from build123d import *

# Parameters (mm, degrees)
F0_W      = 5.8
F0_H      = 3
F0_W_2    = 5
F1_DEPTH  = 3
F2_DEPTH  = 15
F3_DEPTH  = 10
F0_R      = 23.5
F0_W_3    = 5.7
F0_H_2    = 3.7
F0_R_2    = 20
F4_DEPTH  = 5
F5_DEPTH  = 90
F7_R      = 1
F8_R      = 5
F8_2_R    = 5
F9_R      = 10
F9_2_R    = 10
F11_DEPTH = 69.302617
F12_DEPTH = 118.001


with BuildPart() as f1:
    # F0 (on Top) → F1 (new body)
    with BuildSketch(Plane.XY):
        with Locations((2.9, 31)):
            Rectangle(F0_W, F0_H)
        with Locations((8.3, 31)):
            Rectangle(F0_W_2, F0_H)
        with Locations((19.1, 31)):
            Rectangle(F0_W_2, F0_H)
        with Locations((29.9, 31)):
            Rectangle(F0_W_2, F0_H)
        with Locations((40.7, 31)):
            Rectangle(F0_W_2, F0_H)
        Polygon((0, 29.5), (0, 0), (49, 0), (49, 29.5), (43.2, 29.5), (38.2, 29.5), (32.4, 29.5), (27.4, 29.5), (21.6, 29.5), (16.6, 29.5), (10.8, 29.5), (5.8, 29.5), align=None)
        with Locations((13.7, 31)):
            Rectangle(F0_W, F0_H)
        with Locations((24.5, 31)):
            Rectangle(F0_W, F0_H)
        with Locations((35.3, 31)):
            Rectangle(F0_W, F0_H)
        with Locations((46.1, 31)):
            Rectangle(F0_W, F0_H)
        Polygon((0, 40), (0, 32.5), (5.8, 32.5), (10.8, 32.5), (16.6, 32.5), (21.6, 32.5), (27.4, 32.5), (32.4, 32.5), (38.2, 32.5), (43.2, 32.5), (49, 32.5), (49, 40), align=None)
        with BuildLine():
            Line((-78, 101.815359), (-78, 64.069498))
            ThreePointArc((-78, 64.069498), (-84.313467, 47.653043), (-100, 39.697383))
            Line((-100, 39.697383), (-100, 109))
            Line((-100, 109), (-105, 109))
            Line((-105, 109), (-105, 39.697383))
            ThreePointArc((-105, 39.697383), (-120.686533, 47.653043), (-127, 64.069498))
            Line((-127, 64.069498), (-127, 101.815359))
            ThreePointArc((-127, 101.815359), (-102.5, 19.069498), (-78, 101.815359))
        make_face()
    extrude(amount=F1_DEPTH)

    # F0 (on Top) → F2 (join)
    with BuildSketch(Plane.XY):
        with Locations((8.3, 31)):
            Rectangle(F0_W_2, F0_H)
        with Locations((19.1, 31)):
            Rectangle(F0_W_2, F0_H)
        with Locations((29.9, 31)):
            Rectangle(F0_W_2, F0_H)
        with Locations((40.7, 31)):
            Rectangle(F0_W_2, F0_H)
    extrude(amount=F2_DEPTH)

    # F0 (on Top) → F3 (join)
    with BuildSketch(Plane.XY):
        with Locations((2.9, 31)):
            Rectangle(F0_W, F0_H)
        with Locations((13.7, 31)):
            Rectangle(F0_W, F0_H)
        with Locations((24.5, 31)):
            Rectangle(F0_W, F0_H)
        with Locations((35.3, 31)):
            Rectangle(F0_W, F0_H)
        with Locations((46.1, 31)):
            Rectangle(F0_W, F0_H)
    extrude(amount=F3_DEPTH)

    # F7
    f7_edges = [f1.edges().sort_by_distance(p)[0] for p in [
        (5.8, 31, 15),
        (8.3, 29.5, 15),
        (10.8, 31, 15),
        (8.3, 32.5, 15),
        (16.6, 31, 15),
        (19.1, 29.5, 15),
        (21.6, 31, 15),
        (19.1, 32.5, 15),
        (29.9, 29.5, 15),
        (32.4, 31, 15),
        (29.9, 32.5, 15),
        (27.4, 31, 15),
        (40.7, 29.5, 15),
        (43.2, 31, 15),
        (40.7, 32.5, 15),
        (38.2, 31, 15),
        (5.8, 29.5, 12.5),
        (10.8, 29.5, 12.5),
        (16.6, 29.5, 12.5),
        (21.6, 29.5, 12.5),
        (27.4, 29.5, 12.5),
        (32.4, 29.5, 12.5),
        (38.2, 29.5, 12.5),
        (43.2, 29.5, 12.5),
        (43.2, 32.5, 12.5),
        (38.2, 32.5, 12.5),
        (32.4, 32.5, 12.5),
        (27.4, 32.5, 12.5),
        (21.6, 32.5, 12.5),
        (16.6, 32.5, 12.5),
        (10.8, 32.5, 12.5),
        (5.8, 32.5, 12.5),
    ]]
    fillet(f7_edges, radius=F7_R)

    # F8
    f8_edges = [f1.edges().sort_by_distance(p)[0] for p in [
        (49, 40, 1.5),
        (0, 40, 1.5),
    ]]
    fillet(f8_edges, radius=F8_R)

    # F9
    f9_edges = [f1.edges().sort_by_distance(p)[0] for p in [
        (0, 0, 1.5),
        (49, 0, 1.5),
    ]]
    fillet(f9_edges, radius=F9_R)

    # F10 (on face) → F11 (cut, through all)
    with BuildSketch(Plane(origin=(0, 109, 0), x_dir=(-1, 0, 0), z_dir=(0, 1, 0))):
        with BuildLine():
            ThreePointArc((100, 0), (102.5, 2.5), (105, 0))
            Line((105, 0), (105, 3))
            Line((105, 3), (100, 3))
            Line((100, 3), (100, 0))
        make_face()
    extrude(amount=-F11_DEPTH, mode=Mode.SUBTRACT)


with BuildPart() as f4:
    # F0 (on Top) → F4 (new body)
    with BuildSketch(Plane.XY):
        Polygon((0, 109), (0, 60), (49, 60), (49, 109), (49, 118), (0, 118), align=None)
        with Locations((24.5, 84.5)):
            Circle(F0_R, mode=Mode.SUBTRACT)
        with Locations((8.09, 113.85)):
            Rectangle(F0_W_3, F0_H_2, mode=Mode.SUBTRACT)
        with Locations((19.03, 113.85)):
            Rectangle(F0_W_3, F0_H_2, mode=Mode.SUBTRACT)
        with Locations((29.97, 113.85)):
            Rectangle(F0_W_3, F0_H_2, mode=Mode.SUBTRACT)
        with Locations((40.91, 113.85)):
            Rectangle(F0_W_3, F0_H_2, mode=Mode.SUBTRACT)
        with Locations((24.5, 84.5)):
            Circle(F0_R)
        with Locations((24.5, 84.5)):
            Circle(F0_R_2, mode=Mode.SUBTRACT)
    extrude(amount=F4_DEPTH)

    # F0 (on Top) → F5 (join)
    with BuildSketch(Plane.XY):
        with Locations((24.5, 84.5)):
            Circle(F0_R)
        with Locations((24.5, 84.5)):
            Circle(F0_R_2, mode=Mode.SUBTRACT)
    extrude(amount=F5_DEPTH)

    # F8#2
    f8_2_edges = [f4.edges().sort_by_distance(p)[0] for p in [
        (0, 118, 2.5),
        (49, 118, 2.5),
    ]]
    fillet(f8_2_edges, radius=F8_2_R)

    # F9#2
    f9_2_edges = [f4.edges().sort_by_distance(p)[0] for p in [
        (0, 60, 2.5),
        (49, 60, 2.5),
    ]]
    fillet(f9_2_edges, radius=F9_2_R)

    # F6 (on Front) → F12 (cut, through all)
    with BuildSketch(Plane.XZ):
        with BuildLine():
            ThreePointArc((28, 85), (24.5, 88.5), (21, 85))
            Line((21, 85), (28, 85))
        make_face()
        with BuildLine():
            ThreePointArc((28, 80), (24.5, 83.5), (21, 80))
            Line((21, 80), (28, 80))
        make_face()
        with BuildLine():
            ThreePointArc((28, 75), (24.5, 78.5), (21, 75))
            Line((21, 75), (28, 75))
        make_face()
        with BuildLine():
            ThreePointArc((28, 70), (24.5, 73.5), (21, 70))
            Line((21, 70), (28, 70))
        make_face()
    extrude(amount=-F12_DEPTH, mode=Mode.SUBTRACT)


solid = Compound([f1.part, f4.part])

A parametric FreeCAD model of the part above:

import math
import FreeCAD as App
import Part
import Sketcher
from FreeCAD import Vector


def edges_at(feature, points):
    """Names of the edges that pass closest to the given points."""
    edges = feature.Shape.Edges
    near = lambda p: min(range(len(edges)), key=lambda i: edges[i].distToShape(Part.Vertex(*p))[0])
    return sorted({f"Edge{near(p) + 1}" for p in points})


def add_polygon(sketch, points):
    """Adds a closed chain of lines whose ends are joined by coincident constraints."""
    first, n = sketch.GeometryCount, len(points)
    for a, b in zip(points, points[1:] + points[:1]):
        sketch.addGeometry(Part.LineSegment(App.Vector(*a, 0), App.Vector(*b, 0)), False)
    for i in range(n):
        sketch.addConstraint(Sketcher.Constraint("Coincident", first + i, 2, first + (i + 1) % n, 1))

doc = App.newDocument("Part")
body = doc.addObject("PartDesign::Body", "Body")
body.AllowCompound = True

# Sketch on XY plane
sketch1 = body.newObject("Sketcher::SketchObject", "Sketch")
sketch1.AttachmentSupport = (doc.getObject("XY_Plane"), [""])
sketch1.MapMode = "FlatFace"
add_polygon(sketch1, [(0, 0), (49, 0), (49, 40), (0, 40)])  # lines 0-3
sketch1.addGeometry(Part.LineSegment(Vector(-78, 102, 0), Vector(-78, 64, 0)), False)  # 4
sketch1.addGeometry(Part.ArcOfCircle(Part.Circle(Vector(-103, 64, 0), Vector(0, 0, 1), 25), math.radians(-84), math.radians(0)), False)  # 5
sketch1.addGeometry(Part.LineSegment(Vector(-100, 40, 0), Vector(-100, 109, 0)), False)  # 6
sketch1.addGeometry(Part.LineSegment(Vector(-100, 109, 0), Vector(-105, 109, 0)), False)  # 7
sketch1.addGeometry(Part.LineSegment(Vector(-105, 109, 0), Vector(-105, 40, 0)), False)  # 8
sketch1.addGeometry(Part.ArcOfCircle(Part.Circle(Vector(-102, 64, 0), Vector(0, 0, 1), 25), math.radians(-180), math.radians(-96)), False)  # 9
sketch1.addGeometry(Part.LineSegment(Vector(-127, 64, 0), Vector(-127, 102, 0)), False)  # 10
sketch1.addGeometry(Part.ArcOfCircle(Part.Circle(Vector(-102, 64, 0), Vector(0, 0, 1), 45), math.radians(123), math.radians(417)), False)  # 11
sketch1.addConstraint([
    Sketcher.Constraint("Tangent", 4, 2, 5, 2),
    Sketcher.Constraint("Coincident", 5, 1, 6, 1),
    Sketcher.Constraint("Coincident", 6, 2, 7, 1),
    Sketcher.Constraint("Coincident", 7, 2, 8, 1),
    Sketcher.Constraint("Coincident", 8, 2, 9, 2),
    Sketcher.Constraint("Tangent", 9, 1, 10, 1),
    Sketcher.Constraint("Coincident", 10, 2, 11, 1),
    Sketcher.Constraint("Coincident", 11, 2, 4, 1),
    Sketcher.Constraint("Horizontal", 0),
    Sketcher.Constraint("Vertical", 1),
    Sketcher.Constraint("Horizontal", 2),
    Sketcher.Constraint("Vertical", 3),
    Sketcher.Constraint("Vertical", 4),
    Sketcher.Constraint("Vertical", 6),
    Sketcher.Constraint("Horizontal", 7),
    Sketcher.Constraint("Vertical", 8),
    Sketcher.Constraint("Vertical", 10),
    Sketcher.Constraint("Coincident", 3, 2, -1, 1),
    Sketcher.Constraint("Coincident", 9, 3, 5, 3),
    Sketcher.Constraint("Coincident", 11, 3, 5, 3),
    Sketcher.Constraint("Equal", 5, 9),
    Sketcher.Constraint("Horizontal", 5, 1, 8, 2),
    Sketcher.Constraint("Radius", 11, 45.0),
    Sketcher.Constraint("Radius", 5, 24.500001),
    Sketcher.Constraint("DistanceX", 0, 1, 0, 2, 49.0),
    Sketcher.Constraint("DistanceX", 7, 2, 7, 1, 5.0),
    Sketcher.Constraint("DistanceY", 1, 1, 1, 2, 40.0),
    Sketcher.Constraint("DistanceX", 4, 2, -1, 1, 78.0),
    Sketcher.Constraint("DistanceY", -1, 1, 6, 2, 109.0),
    Sketcher.Constraint("DistanceY", -1, 1, 5, 3, 64.069499),
])
pad1 = body.newObject("PartDesign::Pad", "Pad")
pad1.Profile = sketch1
pad1.Length = 3

# Sketch on XY plane
sketch2 = body.newObject("Sketcher::SketchObject", "Sketch001")
sketch2.AttachmentSupport = (doc.getObject("XY_Plane"), [""])
sketch2.MapMode = "FlatFace"
add_polygon(sketch2, [(5.8, 32.5), (5.8, 29.5), (10.8, 29.5), (10.8, 32.5)])  # lines 0-3
add_polygon(sketch2, [(16.6, 32.5), (16.6, 29.5), (21.6, 29.5), (21.6, 32.5)])  # lines 4-7
add_polygon(sketch2, [(27.4, 32.5), (27.4, 29.5), (32.4, 29.5), (32.4, 32.5)])  # lines 8-11
add_polygon(sketch2, [(38.2, 32.5), (38.2, 29.5), (43.2, 29.5), (43.2, 32.5)])  # lines 12-15
sketch2.addConstraint([
    Sketcher.Constraint("Vertical", 0),
    Sketcher.Constraint("Horizontal", 1),
    Sketcher.Constraint("Vertical", 2),
    Sketcher.Constraint("Horizontal", 3),
    Sketcher.Constraint("Vertical", 4),
    Sketcher.Constraint("Horizontal", 5),
    Sketcher.Constraint("Vertical", 6),
    Sketcher.Constraint("Horizontal", 7),
    Sketcher.Constraint("Vertical", 8),
    Sketcher.Constraint("Horizontal", 9),
    Sketcher.Constraint("Vertical", 10),
    Sketcher.Constraint("Horizontal", 11),
    Sketcher.Constraint("Vertical", 12),
    Sketcher.Constraint("Horizontal", 13),
    Sketcher.Constraint("Vertical", 14),
    Sketcher.Constraint("Horizontal", 15),
    Sketcher.Constraint("Horizontal", 1, 2, 4, 2),
    Sketcher.Constraint("Horizontal", 3, 2, 6, 2),
    Sketcher.Constraint("Horizontal", 5, 2, 8, 2),
    Sketcher.Constraint("Horizontal", 7, 2, 10, 2),
    Sketcher.Constraint("Horizontal", 9, 2, 12, 2),
    Sketcher.Constraint("Horizontal", 11, 2, 14, 2),
    Sketcher.Constraint("Equal", 3, 5),
    Sketcher.Constraint("Equal", 7, 9),
    Sketcher.Constraint("Equal", 11, 13),
    Sketcher.Constraint("DistanceX", 1, 1, 1, 2, 5.0),
    Sketcher.Constraint("DistanceY", 0, 2, 0, 1, 3.0),
    Sketcher.Constraint("DistanceX", -1, 1, 0, 2, 5.8),
    Sketcher.Constraint("DistanceY", -1, 1, 0, 2, 29.5),
    Sketcher.Constraint("DistanceX", -1, 1, 4, 2, 16.6),
    Sketcher.Constraint("DistanceX", -1, 1, 8, 2, 27.4),
    Sketcher.Constraint("DistanceX", -1, 1, 12, 2, 38.2),
])
pad2 = body.newObject("PartDesign::Pad", "Pad001")
pad2.Profile = sketch2
pad2.Length = 15

# Sketch on XY plane
sketch3 = body.newObject("Sketcher::SketchObject", "Sketch002")
sketch3.AttachmentSupport = (doc.getObject("XY_Plane"), [""])
sketch3.MapMode = "FlatFace"
add_polygon(sketch3, [(0, 32.5), (0, 29.5), (5.8, 29.5), (5.8, 32.5)])  # lines 0-3
add_polygon(sketch3, [(10.8, 32.5), (10.8, 29.5), (16.6, 29.5), (16.6, 32.5)])  # lines 4-7
add_polygon(sketch3, [(21.6, 32.5), (21.6, 29.5), (27.4, 29.5), (27.4, 32.5)])  # lines 8-11
add_polygon(sketch3, [(32.4, 32.5), (32.4, 29.5), (38.2, 29.5), (38.2, 32.5)])  # lines 12-15
add_polygon(sketch3, [(43.2, 32.5), (43.2, 29.5), (49, 29.5), (49, 32.5)])  # lines 16-19
sketch3.addConstraint([
    Sketcher.Constraint("Vertical", 0),
    Sketcher.Constraint("Horizontal", 1),
    Sketcher.Constraint("Vertical", 2),
    Sketcher.Constraint("Horizontal", 3),
    Sketcher.Constraint("Vertical", 4),
    Sketcher.Constraint("Horizontal", 5),
    Sketcher.Constraint("Vertical", 6),
    Sketcher.Constraint("Horizontal", 7),
    Sketcher.Constraint("Vertical", 8),
    Sketcher.Constraint("Horizontal", 9),
    Sketcher.Constraint("Vertical", 10),
    Sketcher.Constraint("Horizontal", 11),
    Sketcher.Constraint("Vertical", 12),
    Sketcher.Constraint("Horizontal", 13),
    Sketcher.Constraint("Vertical", 14),
    Sketcher.Constraint("Horizontal", 15),
    Sketcher.Constraint("Vertical", 16),
    Sketcher.Constraint("Horizontal", 17),
    Sketcher.Constraint("Vertical", 18),
    Sketcher.Constraint("Horizontal", 19),
    Sketcher.Constraint("PointOnObject", 0, 2, -2),
    Sketcher.Constraint("Horizontal", 1, 2, 4, 2),
    Sketcher.Constraint("Horizontal", 3, 2, 6, 2),
    Sketcher.Constraint("Horizontal", 5, 2, 8, 2),
    Sketcher.Constraint("Horizontal", 7, 2, 10, 2),
    Sketcher.Constraint("Horizontal", 9, 2, 12, 2),
    Sketcher.Constraint("Horizontal", 11, 2, 14, 2),
    Sketcher.Constraint("Horizontal", 13, 2, 16, 2),
    Sketcher.Constraint("Horizontal", 15, 2, 18, 2),
    Sketcher.Constraint("Equal", 3, 5),
    Sketcher.Constraint("Equal", 7, 9),
    Sketcher.Constraint("Equal", 11, 13),
    Sketcher.Constraint("Equal", 15, 17),
    Sketcher.Constraint("DistanceY", 0, 2, 0, 1, 3.0),
    Sketcher.Constraint("DistanceX", 1, 1, 1, 2, 5.8),
    Sketcher.Constraint("DistanceX", -1, 1, 17, 2, 49.0),
    Sketcher.Constraint("DistanceX", 1, 2, 4, 2, 5.0),
    Sketcher.Constraint("DistanceX", 5, 2, 8, 2, 5.0),
    Sketcher.Constraint("DistanceX", 9, 2, 12, 2, 5.0),
    Sketcher.Constraint("DistanceY", -1, 1, 0, 2, 29.5),
])
pad3 = body.newObject("PartDesign::Pad", "Pad002")
pad3.Profile = sketch3
pad3.Length = 10
doc.recompute()

fillet = body.newObject("PartDesign::Fillet", "Fillet")
fillet.Base = (pad3, edges_at(pad3, [
    (5.8, 31, 15),
    (8.3, 29.5, 15),
    (10.8, 31, 15),
    (8.3, 32.5, 15),
    (16.6, 31, 15),
    (19.1, 29.5, 15),
    (21.6, 31, 15),
    (19.1, 32.5, 15),
    (29.9, 29.5, 15),
    (32.4, 31, 15),
    (29.9, 32.5, 15),
    (27.4, 31, 15),
    (40.7, 29.5, 15),
    (43.2, 31, 15),
    (40.7, 32.5, 15),
    (38.2, 31, 15),
    (5.8, 29.5, 12.5),
    (10.8, 29.5, 12.5),
    (16.6, 29.5, 12.5),
    (21.6, 29.5, 12.5),
    (27.4, 29.5, 12.5),
    (32.4, 29.5, 12.5),
    (38.2, 29.5, 12.5),
    (43.2, 29.5, 12.5),
    (43.2, 32.5, 12.5),
    (38.2, 32.5, 12.5),
    (32.4, 32.5, 12.5),
    (27.4, 32.5, 12.5),
    (21.6, 32.5, 12.5),
    (16.6, 32.5, 12.5),
    (10.8, 32.5, 12.5),
    (5.8, 32.5, 12.5),
]))
fillet.Radius = 1
doc.recompute()

fillet2 = body.newObject("PartDesign::Fillet", "Fillet001")
fillet2.Base = (fillet, edges_at(fillet, [(49, 40, 1.5), (0, 40, 1.5)]))
fillet2.Radius = 5
doc.recompute()

fillet3 = body.newObject("PartDesign::Fillet", "Fillet002")
fillet3.Base = (fillet2, edges_at(fillet2, [(0, 0, 1.5), (49, 0, 1.5)]))
fillet3.Radius = 10

# Sketch on XZ plane
sketch4 = body.newObject("Sketcher::SketchObject", "Sketch003")
sketch4.AttachmentSupport = (doc.getObject("XZ_Plane"), [""])
sketch4.MapMode = "FlatFace"
sketch4.AttachmentOffset = App.Placement(Vector(0, 0, -109), App.Rotation())
sketch4.addGeometry([
    Part.ArcOfCircle(Part.Circle(Vector(-102.5, 0, 0), Vector(0, 0, 1), 2.5), math.radians(0), math.radians(180)),
    Part.LineSegment(Vector(-105, 0, 0), Vector(-105, 3, 0)),
    Part.LineSegment(Vector(-105, 3, 0), Vector(-100, 3, 0)),
    Part.LineSegment(Vector(-100, 3, 0), Vector(-100, 0, 0)),
], False)
sketch4.addConstraint([
    Sketcher.Constraint("Tangent", 0, 2, 1, 1),
    Sketcher.Constraint("Coincident", 1, 2, 2, 1),
    Sketcher.Constraint("Coincident", 2, 2, 3, 1),
    Sketcher.Constraint("Tangent", 3, 2, 0, 1),
    Sketcher.Constraint("Vertical", 1),
    Sketcher.Constraint("Horizontal", 2),
    Sketcher.Constraint("Vertical", 3),
    Sketcher.Constraint("PointOnObject", 0, 3, -1),
    Sketcher.Constraint("Radius", 0, 2.5),
    Sketcher.Constraint("DistanceY", 1, 1, 1, 2, 3.0),
    Sketcher.Constraint("DistanceX", 0, 2, -1, 1, 105.0),
])
pocket1 = body.newObject("PartDesign::Pocket", "Pocket")
pocket1.Profile = sketch4
pocket1.Length = 69.302617
pocket1.Reversed = True
body2 = doc.addObject("PartDesign::Body", "Body001")

# Sketch on XY plane
sketch5 = body2.newObject("Sketcher::SketchObject", "Sketch004")
sketch5.AttachmentSupport = (doc.getObject("XY_Plane001"), [""])
sketch5.MapMode = "FlatFace"
add_polygon(sketch5, [(0, 60), (49, 60), (49, 118), (0, 118)])  # lines 0-3
sketch5.addGeometry(Part.Circle(Vector(24.5, 84.5, 0), Vector(0, 0, 1), 20), False)  # 4
add_polygon(sketch5, [(10.9, 112), (5.2, 112), (5.2, 115.7), (10.9, 115.7)])  # lines 5-8
add_polygon(sketch5, [(21.9, 112), (16.2, 112), (16.2, 115.7), (21.9, 115.7)])  # lines 9-12
add_polygon(sketch5, [(32.8, 112), (27.1, 112), (27.1, 115.7), (32.8, 115.7)])  # lines 13-16
add_polygon(sketch5, [(43.8, 112), (38.1, 112), (38.1, 115.7), (43.8, 115.7)])  # lines 17-20
sketch5.addConstraint([
    Sketcher.Constraint("Horizontal", 0),
    Sketcher.Constraint("Vertical", 1),
    Sketcher.Constraint("Horizontal", 2),
    Sketcher.Constraint("Vertical", 3),
    Sketcher.Constraint("Horizontal", 5),
    Sketcher.Constraint("Vertical", 6),
    Sketcher.Constraint("Horizontal", 7),
    Sketcher.Constraint("Vertical", 8),
    Sketcher.Constraint("Horizontal", 9),
    Sketcher.Constraint("Vertical", 10),
    Sketcher.Constraint("Horizontal", 11),
    Sketcher.Constraint("Vertical", 12),
    Sketcher.Constraint("Horizontal", 13),
    Sketcher.Constraint("Vertical", 14),
    Sketcher.Constraint("Horizontal", 15),
    Sketcher.Constraint("Vertical", 16),
    Sketcher.Constraint("Horizontal", 17),
    Sketcher.Constraint("Vertical", 18),
    Sketcher.Constraint("Horizontal", 19),
    Sketcher.Constraint("Vertical", 20),
    Sketcher.Constraint("PointOnObject", 2, 2, -2),
    Sketcher.Constraint("Horizontal", 8, 2, 9, 2),
    Sketcher.Constraint("Horizontal", 7, 2, 10, 2),
    Sketcher.Constraint("Horizontal", 12, 2, 13, 2),
    Sketcher.Constraint("Horizontal", 11, 2, 14, 2),
    Sketcher.Constraint("Horizontal", 16, 2, 17, 2),
    Sketcher.Constraint("Horizontal", 15, 2, 18, 2),
    Sketcher.Constraint("Equal", 7, 9),
    Sketcher.Constraint("Equal", 11, 13),
    Sketcher.Constraint("Equal", 15, 17),
    Sketcher.Constraint("Diameter", 4, 40.0),
    Sketcher.Constraint("DistanceX", 0, 1, 0, 2, 49.0),
    Sketcher.Constraint("DistanceY", 1, 1, 1, 2, 58.0),
    Sketcher.Constraint("DistanceX", 5, 2, 5, 1, 5.7),
    Sketcher.Constraint("DistanceY", 6, 1, 6, 2, 3.7),
    Sketcher.Constraint("DistanceY", -1, 1, 0, 2, 60.0),
    Sketcher.Constraint("DistanceY", -1, 1, 5, 2, 112.0),
    Sketcher.Constraint("DistanceX", -1, 1, 4, 3, 24.5),
    Sketcher.Constraint("DistanceY", -1, 1, 4, 3, 84.5),
    Sketcher.Constraint("DistanceX", -1, 1, 5, 2, 5.24),
    Sketcher.Constraint("DistanceX", -1, 1, 9, 2, 16.18),
    Sketcher.Constraint("DistanceX", -1, 1, 13, 2, 27.12),
    Sketcher.Constraint("DistanceX", -1, 1, 17, 2, 38.06),
])
pad4 = body2.newObject("PartDesign::Pad", "Pad003")
pad4.Profile = sketch5
pad4.Length = 5

# Sketch on XY plane
sketch6 = body2.newObject("Sketcher::SketchObject", "Sketch005")
sketch6.AttachmentSupport = (doc.getObject("XY_Plane001"), [""])
sketch6.MapMode = "FlatFace"
sketch6.addGeometry([
    Part.Circle(Vector(24, 84, 0), Vector(0, 0, 1), 24),
    Part.Circle(Vector(24, 84, 0), Vector(0, 0, 1), 20),
], False)
sketch6.addConstraint([
    Sketcher.Constraint("Coincident", 1, 3, 0, 3),
    Sketcher.Constraint("Diameter", 0, 47.0),
    Sketcher.Constraint("Diameter", 1, 40.0),
    Sketcher.Constraint("DistanceX", -1, 1, 0, 3, 24.5),
    Sketcher.Constraint("DistanceY", -1, 1, 0, 3, 84.5),
])
pad5 = body2.newObject("PartDesign::Pad", "Pad004")
pad5.Profile = sketch6
pad5.Length = 90
doc.recompute()

fillet4 = body2.newObject("PartDesign::Fillet", "Fillet003")
fillet4.Base = (pad5, edges_at(pad5, [(0, 118, 2.5), (49, 118, 2.5)]))
fillet4.Radius = 5
doc.recompute()

fillet5 = body2.newObject("PartDesign::Fillet", "Fillet004")
fillet5.Base = (fillet4, edges_at(fillet4, [(0, 60, 2.5), (49, 60, 2.5)]))
fillet5.Radius = 10

# Sketch on XZ plane
sketch7 = body2.newObject("Sketcher::SketchObject", "Sketch006")
sketch7.AttachmentSupport = (doc.getObject("XZ_Plane001"), [""])
sketch7.MapMode = "FlatFace"
sketch7.addGeometry([
    Part.ArcOfCircle(Part.Circle(Vector(24.5, 85, 0), Vector(0, 0, 1), 3.5), math.radians(0), math.radians(180)),  # 0
    Part.LineSegment(Vector(21, 85, 0), Vector(28, 85, 0)),  # 1
    Part.ArcOfCircle(Part.Circle(Vector(24.5, 80, 0), Vector(0, 0, 1), 3.5), math.radians(0), math.radians(180)),  # 2
    Part.LineSegment(Vector(21, 80, 0), Vector(28, 80, 0)),  # 3
    Part.ArcOfCircle(Part.Circle(Vector(24.5, 75, 0), Vector(0, 0, 1), 3.5), math.radians(0), math.radians(180)),  # 4
    Part.LineSegment(Vector(21, 75, 0), Vector(28, 75, 0)),  # 5
    Part.ArcOfCircle(Part.Circle(Vector(24.5, 70, 0), Vector(0, 0, 1), 3.5), math.radians(0), math.radians(180)),  # 6
    Part.LineSegment(Vector(21, 70, 0), Vector(28, 70, 0)),  # 7
], False)
sketch7.addConstraint([
    Sketcher.Constraint("Coincident", 0, 1, 1, 2),
    Sketcher.Constraint("Coincident", 1, 1, 0, 2),
    Sketcher.Constraint("Coincident", 2, 1, 3, 2),
    Sketcher.Constraint("Coincident", 3, 1, 2, 2),
    Sketcher.Constraint("Coincident", 4, 1, 5, 2),
    Sketcher.Constraint("Coincident", 5, 1, 4, 2),
    Sketcher.Constraint("Coincident", 6, 1, 7, 2),
    Sketcher.Constraint("Coincident", 7, 1, 6, 2),
    Sketcher.Constraint("Horizontal", 1),
    Sketcher.Constraint("Horizontal", 3),
    Sketcher.Constraint("Horizontal", 5),
    Sketcher.Constraint("Horizontal", 7),
    Sketcher.Constraint("Equal", 0, 2),
    Sketcher.Constraint("Equal", 2, 4),
    Sketcher.Constraint("Equal", 4, 6),
    Sketcher.Constraint("Vertical", 0, 3, 2, 3),
    Sketcher.Constraint("Vertical", 2, 3, 4, 3),
    Sketcher.Constraint("Vertical", 4, 3, 6, 3),
    Sketcher.Constraint("Radius", 0, 3.5),
    Sketcher.Constraint("DistanceY", -1, 1, 0, 3, 85.0),
    Sketcher.Constraint("DistanceY", -1, 1, 2, 3, 80.0),
    Sketcher.Constraint("DistanceY", -1, 1, 4, 3, 75.0),
    Sketcher.Constraint("DistanceY", -1, 1, 6, 3, 70.0),
    Sketcher.Constraint("DistanceX", -1, 1, 0, 1, 28.0),
    Sketcher.Constraint("DistanceY", -1, 1, 0, 1, 85.0),
    Sketcher.Constraint("DistanceY", -1, 1, 2, 1, 80.0),
    Sketcher.Constraint("DistanceY", -1, 1, 4, 1, 75.0),
    Sketcher.Constraint("DistanceY", -1, 1, 6, 1, 70.0),
])
pocket2 = body2.newObject("PartDesign::Pocket", "Pocket001")
pocket2.Profile = sketch7
pocket2.Type = "ThroughAll"

doc.recompute()
